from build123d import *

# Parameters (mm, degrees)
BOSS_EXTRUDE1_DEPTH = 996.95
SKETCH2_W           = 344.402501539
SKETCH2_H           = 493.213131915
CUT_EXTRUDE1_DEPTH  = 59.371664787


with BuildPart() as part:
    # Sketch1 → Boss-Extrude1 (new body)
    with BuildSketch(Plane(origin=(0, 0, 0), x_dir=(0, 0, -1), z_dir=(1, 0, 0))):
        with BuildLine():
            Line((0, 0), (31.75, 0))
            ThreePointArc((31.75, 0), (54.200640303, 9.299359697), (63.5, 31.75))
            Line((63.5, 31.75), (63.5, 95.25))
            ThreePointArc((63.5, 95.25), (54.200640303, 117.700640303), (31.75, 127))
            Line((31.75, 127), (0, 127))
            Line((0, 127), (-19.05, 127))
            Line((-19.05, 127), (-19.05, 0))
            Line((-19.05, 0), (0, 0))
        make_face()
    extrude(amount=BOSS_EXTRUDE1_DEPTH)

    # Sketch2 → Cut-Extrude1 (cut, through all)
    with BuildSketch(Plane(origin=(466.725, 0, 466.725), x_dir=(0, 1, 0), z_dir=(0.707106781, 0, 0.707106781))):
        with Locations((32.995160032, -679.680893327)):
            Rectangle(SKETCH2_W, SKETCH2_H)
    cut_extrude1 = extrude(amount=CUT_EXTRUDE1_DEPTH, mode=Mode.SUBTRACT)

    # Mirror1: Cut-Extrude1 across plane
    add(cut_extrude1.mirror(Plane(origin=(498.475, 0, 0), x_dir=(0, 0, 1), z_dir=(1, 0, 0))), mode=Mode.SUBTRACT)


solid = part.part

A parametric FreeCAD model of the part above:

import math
import FreeCAD as App
import Part
import Sketcher
Q = App.Units.Quantity

doc = App.newDocument("Part")
body = doc.addObject("PartDesign::Body", "Body")

# Sketch on YZ plane
sketch1 = body.newObject("Sketcher::SketchObject", "Sketch")
sketch1.AttachmentSupport = (doc.getObject("YZ_Plane"), [""])
sketch1.MapMode = "FlatFace"
sketch1.addGeometry(Part.ArcOfCircle(Part.Circle(App.Vector(32, -32, 0), App.Vector(0, 0, 1), 32), math.radians(180), math.radians(270)), False)
sketch1.addGeometry(Part.LineSegment(App.Vector(32, -64, 0), App.Vector(95, -64, 0)), False)
sketch1.addGeometry(Part.ArcOfCircle(Part.Circle(App.Vector(95, -32, 0), App.Vector(0, 0, 1), 32), math.radians(-90), math.radians(0)), False)
sketch1.addGeometry(Part.LineSegment(App.Vector(127, -32, 0), App.Vector(127, 19, 0)), False)
sketch1.addGeometry(Part.LineSegment(App.Vector(127, 19, 0), App.Vector(0, 19, 0)), False)
sketch1.addGeometry(Part.LineSegment(App.Vector(0, 19, 0), App.Vector(0, -32, 0)), False)
sketch1.addConstraint(Sketcher.Constraint("Tangent", 0, 2, 1, 1))
sketch1.addConstraint(Sketcher.Constraint("Tangent", 1, 2, 2, 1))
sketch1.addConstraint(Sketcher.Constraint("Tangent", 2, 2, 3, 1))
sketch1.addConstraint(Sketcher.Constraint("Coincident", 3, 2, 4, 1))
sketch1.addConstraint(Sketcher.Constraint("Coincident", 4, 2, 5, 1))
sketch1.addConstraint(Sketcher.Constraint("Tangent", 5, 2, 0, 1))
sketch1.addConstraint(Sketcher.Constraint("Horizontal", 1))
sketch1.addConstraint(Sketcher.Constraint("Vertical", 3))
sketch1.addConstraint(Sketcher.Constraint("Horizontal", 4))
sketch1.addConstraint(Sketcher.Constraint("Vertical", 5))
sketch1.addConstraint(Sketcher.Constraint("Equal", 0, 2))
sketch1.addConstraint(Sketcher.Constraint("PointOnObject", 4, 2, -2))
sketch1.addConstraint(Sketcher.Constraint("DistanceX", 4, 2, 4, 1, Q("5 in")))
sketch1.addConstraint(Sketcher.Constraint("DistanceY", 3, 1, 3, 2, Q("2 in")))
sketch1.addConstraint(Sketcher.Constraint("Radius", 0, Q("1.25 in")))
sketch1.addConstraint(Sketcher.Constraint("DistanceY", 0, 2, -1, 1, Q("2.5 in")))
pad1 = body.newObject("PartDesign::Pad", "Pad")
pad1.Profile = sketch1
pad1.Length = Q("39.25 in")

# Sketch on an angled plane
sketch2 = body.newObject("Sketcher::SketchObject", "Sketch001")
sketch2.Placement = App.Placement(App.Vector(466.725, 0, 466.725), App.Rotation(App.Vector(0, 1, 0), App.Vector(-0.707106781, 0, 0.707106781), App.Vector(0.707106781, 0, 0.707106781), "ZXY"))
sketch2.addGeometry(Part.LineSegment(App.Vector(-139, -433, 0), App.Vector(-139, -926, 0)), False)
sketch2.addGeometry(Part.LineSegment(App.Vector(-139, -926, 0), App.Vector(205, -926, 0)), False)
sketch2.addGeometry(Part.LineSegment(App.Vector(205, -926, 0), App.Vector(205, -433, 0)), False)
sketch2.addGeometry(Part.LineSegment(App.Vector(205, -433, 0), App.Vector(-139, -433, 0)), False)
sketch2.addConstraint(Sketcher.Constraint("Coincident", 0, 2, 1, 1))
sketch2.addConstraint(Sketcher.Constraint("Coincident", 1, 2, 2, 1))
sketch2.addConstraint(Sketcher.Constraint("Coincident", 2, 2, 3, 1))
sketch2.addConstraint(Sketcher.Constraint("Coincident", 3, 2, 0, 1))
sketch2.addConstraint(Sketcher.Constraint("Vertical", 0))
sketch2.addConstraint(Sketcher.Constraint("Horizontal", 1))
sketch2.addConstraint(Sketcher.Constraint("Vertical", 2))
sketch2.addConstraint(Sketcher.Constraint("Horizontal", 3))
sketch2.addConstraint(Sketcher.Constraint("DistanceX", 1, 1, 1, 2, Q("344.402502 mm")))
sketch2.addConstraint(Sketcher.Constraint("DistanceY", 0, 2, 0, 1, Q("493.213132 mm")))
sketch2.addConstraint(Sketcher.Constraint("DistanceX", 0, 2, -1, 1, Q("139.206091 mm")))
sketch2.addConstraint(Sketcher.Constraint("DistanceY", 0, 2, -1, 1, Q("926.287459 mm")))
pocket1 = body.newObject("PartDesign::Pocket", "Pocket")
pocket1.Profile = sketch2
pocket1.Type = "ThroughAll"
pocket1.Reversed = True
doc.recompute()

datumplane = body.newObject("PartDesign::Plane", "DatumPlane")
datumplane.AttachmentSupport = (doc.getObject("YZ_Plane"), [""])
datumplane.MapMode = "FlatFace"
datumplane.AttachmentOffset = App.Placement(App.Vector(0, 0, 19.625 * 25.4), App.Rotation())
mirrored = body.newObject("PartDesign::Mirrored", "Mirrored")
mirrored.Originals = [pocket1]
mirrored.MirrorPlane = (datumplane, [""])
body.Tip = mirrored

doc.recompute()
